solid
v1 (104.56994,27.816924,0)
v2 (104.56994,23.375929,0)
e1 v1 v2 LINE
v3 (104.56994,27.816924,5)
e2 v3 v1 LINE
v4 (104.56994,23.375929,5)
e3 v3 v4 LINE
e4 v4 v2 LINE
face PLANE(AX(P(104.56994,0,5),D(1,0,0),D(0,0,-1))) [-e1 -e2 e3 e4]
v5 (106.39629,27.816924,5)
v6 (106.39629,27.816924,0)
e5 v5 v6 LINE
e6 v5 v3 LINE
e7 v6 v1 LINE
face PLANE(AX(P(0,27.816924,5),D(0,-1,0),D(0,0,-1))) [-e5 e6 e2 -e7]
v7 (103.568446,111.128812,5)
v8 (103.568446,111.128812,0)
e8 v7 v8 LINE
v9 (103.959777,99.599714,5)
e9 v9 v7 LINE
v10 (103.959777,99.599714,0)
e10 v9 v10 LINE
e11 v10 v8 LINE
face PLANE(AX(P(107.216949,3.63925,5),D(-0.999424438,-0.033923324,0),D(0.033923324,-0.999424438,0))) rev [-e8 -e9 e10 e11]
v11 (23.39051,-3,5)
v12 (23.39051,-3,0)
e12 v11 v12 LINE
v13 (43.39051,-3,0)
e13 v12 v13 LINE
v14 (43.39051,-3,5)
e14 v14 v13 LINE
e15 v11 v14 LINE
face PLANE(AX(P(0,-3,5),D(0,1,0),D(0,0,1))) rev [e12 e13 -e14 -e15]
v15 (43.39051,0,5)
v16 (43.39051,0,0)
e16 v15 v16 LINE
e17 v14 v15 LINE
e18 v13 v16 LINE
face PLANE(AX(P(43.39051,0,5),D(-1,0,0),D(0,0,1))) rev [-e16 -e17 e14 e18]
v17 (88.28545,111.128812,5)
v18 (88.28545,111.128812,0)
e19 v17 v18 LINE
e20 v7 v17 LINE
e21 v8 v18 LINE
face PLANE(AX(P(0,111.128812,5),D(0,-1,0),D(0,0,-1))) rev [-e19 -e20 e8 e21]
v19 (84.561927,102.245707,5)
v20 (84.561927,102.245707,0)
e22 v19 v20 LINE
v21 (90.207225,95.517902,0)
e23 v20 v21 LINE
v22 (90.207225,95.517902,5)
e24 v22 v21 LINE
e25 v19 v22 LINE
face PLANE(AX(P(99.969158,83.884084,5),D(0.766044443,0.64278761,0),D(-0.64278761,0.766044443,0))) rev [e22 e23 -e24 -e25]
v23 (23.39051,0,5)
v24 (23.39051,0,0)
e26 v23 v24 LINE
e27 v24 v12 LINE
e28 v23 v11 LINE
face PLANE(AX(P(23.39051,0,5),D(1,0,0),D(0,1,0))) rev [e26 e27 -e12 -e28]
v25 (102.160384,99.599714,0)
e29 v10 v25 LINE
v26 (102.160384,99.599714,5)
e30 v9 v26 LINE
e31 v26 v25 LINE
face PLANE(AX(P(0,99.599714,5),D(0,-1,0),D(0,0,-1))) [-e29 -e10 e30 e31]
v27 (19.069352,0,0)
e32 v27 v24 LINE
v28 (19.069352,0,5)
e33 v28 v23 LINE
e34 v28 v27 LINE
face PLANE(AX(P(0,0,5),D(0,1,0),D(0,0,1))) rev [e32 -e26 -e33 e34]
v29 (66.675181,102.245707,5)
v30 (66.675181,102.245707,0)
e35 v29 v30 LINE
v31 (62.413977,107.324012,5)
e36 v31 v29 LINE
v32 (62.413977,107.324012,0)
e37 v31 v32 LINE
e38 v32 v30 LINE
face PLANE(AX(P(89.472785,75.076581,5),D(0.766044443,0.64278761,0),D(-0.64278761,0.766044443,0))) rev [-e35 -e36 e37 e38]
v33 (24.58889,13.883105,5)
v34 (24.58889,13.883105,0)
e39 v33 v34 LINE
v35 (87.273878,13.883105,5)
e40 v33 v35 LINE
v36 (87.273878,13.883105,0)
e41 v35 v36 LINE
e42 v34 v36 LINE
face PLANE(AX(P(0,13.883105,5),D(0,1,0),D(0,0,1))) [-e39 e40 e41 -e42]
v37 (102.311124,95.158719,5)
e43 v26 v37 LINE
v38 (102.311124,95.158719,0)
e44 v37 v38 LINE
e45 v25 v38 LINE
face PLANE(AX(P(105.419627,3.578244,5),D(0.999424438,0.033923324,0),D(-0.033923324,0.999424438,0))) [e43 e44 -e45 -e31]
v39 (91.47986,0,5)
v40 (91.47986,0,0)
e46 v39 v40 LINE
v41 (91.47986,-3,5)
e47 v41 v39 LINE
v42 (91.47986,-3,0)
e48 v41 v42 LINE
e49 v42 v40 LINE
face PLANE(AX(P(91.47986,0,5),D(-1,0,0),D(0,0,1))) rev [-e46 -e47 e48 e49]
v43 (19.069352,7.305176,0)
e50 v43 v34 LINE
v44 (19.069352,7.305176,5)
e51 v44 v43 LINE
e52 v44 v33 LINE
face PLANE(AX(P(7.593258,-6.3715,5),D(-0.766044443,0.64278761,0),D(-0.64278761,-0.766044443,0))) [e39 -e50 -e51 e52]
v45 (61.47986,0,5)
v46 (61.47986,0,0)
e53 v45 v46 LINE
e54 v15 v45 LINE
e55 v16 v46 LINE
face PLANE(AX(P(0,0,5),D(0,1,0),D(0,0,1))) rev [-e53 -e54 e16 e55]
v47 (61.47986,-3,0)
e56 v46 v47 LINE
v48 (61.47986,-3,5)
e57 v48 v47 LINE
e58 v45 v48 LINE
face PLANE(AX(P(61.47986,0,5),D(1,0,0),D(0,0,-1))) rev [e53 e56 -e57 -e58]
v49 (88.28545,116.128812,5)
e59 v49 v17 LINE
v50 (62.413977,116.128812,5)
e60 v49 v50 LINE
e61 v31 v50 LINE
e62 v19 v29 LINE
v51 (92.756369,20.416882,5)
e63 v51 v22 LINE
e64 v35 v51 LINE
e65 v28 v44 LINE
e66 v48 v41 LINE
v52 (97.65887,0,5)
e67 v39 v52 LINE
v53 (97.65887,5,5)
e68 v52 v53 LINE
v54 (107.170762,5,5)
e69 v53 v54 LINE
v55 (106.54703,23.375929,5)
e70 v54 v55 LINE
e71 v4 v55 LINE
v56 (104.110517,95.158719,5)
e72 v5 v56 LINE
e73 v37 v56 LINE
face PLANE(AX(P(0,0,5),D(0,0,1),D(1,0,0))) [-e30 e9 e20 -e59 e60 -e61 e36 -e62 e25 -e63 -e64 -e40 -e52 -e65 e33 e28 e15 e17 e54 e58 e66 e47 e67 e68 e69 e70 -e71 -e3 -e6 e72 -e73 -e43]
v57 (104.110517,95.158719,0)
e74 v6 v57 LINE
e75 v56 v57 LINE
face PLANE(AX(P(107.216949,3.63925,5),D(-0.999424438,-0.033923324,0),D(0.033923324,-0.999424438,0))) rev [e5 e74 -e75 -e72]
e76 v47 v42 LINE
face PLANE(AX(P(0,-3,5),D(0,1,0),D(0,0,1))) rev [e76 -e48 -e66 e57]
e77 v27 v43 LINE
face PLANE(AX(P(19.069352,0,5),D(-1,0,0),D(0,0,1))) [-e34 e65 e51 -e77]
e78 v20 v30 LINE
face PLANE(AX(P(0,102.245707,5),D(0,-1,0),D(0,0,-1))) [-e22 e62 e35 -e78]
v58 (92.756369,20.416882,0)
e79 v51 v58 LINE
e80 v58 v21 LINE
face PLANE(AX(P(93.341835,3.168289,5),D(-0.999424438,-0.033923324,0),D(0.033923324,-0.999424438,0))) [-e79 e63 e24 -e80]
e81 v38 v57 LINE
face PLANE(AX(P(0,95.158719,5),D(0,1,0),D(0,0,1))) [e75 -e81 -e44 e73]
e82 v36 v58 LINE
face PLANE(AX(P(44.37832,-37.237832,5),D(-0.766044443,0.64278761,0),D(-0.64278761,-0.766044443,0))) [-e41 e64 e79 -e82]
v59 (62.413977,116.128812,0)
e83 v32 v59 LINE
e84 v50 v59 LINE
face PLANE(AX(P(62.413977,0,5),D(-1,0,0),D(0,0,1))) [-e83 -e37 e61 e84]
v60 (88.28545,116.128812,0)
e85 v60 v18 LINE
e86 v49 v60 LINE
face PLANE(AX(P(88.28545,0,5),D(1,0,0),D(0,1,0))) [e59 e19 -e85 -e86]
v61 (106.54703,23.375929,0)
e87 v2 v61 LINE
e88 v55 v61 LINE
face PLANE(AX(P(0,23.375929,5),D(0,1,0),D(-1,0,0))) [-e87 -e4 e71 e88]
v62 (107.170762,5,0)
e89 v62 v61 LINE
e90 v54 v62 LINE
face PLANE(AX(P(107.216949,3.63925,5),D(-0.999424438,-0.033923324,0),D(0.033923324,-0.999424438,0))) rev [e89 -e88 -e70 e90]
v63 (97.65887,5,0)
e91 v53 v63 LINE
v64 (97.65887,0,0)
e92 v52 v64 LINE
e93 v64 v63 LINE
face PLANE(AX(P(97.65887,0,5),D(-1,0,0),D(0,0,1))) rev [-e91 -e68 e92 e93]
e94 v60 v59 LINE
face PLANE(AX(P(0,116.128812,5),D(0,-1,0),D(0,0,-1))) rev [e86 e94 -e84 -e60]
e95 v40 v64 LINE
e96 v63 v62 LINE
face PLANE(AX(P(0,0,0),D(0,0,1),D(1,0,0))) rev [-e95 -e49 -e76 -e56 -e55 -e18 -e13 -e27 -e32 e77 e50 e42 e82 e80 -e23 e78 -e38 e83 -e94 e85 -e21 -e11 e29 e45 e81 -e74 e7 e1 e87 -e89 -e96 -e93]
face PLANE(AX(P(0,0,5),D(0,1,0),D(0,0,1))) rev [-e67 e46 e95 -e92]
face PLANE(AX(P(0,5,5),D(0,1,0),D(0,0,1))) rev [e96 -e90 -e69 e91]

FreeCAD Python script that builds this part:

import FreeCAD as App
import Part
import Sketcher
Q = App.Units.Quantity


def add_polygon(sketch, points):
    """Adds a closed chain of lines whose ends are joined by coincident constraints."""
    first, n = sketch.GeometryCount, len(points)
    for a, b in zip(points, points[1:] + points[:1]):
        sketch.addGeometry(Part.LineSegment(App.Vector(*a, 0), App.Vector(*b, 0)), False)
    for i in range(n):
        sketch.addConstraint(Sketcher.Constraint("Coincident", first + i, 2, first + (i + 1) % n, 1))

doc = App.newDocument("Part")
body = doc.addObject("PartDesign::Body", "Body")

sketch1 = doc.addObject("Sketcher::SketchObject", "Sketch")
body.addObject(sketch1)
sketch1.AttachmentSupport = (doc.XY_Plane, [""])
sketch1.MapMode = "FlatFace"
add_polygon(sketch1, [(19.069352, 7.305176), (19.069352, 0), (23.39051, 0), (23.39051, -3), (43.39051, -3), (43.39051, 0), (61.47986, 0), (61.47986, -3), (91.47986, -3), (91.47986, 0), (97.65887, 0), (97.65887, 5), (107.170762, 5), (106.54703, 23.375929), (104.56994, 23.375929), (104.56994, 27.816924), (106.39629, 27.816924), (104.110517, 95.158719), (102.311124, 95.158719), (102.160384, 99.599714), (103.959777, 99.599714), (103.568446, 111.128812), (88.28545, 111.128812), (88.28545, 116.128812), (62.413977, 116.128812), (62.413977, 107.324012), (66.675181, 102.245707), (84.561927, 102.245707), (90.207225, 95.517902), (92.756369, 20.416882), (87.273878, 13.883105), (24.58889, 13.883105)])
sketch1.addConstraint([
    Sketcher.Constraint("Vertical", 0),
    Sketcher.Constraint("Horizontal", 1),
    Sketcher.Constraint("Vertical", 2),
    Sketcher.Constraint("Horizontal", 3),
    Sketcher.Constraint("Vertical", 4),
    Sketcher.Constraint("Horizontal", 5),
    Sketcher.Constraint("Vertical", 6),
    Sketcher.Constraint("Horizontal", 7),
    Sketcher.Constraint("Vertical", 8),
    Sketcher.Constraint("Horizontal", 9),
    Sketcher.Constraint("Vertical", 10),
    Sketcher.Constraint("Horizontal", 11),
    Sketcher.Constraint("Horizontal", 13),
    Sketcher.Constraint("Vertical", 14),
    Sketcher.Constraint("Horizontal", 15),
    Sketcher.Constraint("Horizontal", 17),
    Sketcher.Constraint("Horizontal", 19),
    Sketcher.Constraint("Horizontal", 21),
    Sketcher.Constraint("Vertical", 22),
    Sketcher.Constraint("Horizontal", 23),
    Sketcher.Constraint("Vertical", 24),
    Sketcher.Constraint("Horizontal", 26),
    Sketcher.Constraint("Horizontal", 30),
    Sketcher.Constraint("PointOnObject", 0, 2, -1),
    Sketcher.Constraint("PointOnObject", 4, 2, -1),
    Sketcher.Constraint("PointOnObject", 8, 2, -1),
    Sketcher.Constraint("DistanceX", 3, 1, 3, 2, Q("20 mm")),
    Sketcher.Constraint("DistanceX", 7, 1, 7, 2, Q("30 mm")),
    Sketcher.Constraint("DistanceY", 2, 2, 2, 1, Q("3 mm")),
    Sketcher.Constraint("DistanceY", 6, 2, 6, 1, Q("3 mm")),
    Sketcher.Constraint("DistanceY", 10, 1, 10, 2, Q("5 mm")),
    Sketcher.Constraint("DistanceY", 22, 1, 22, 2, Q("5 mm")),
    Sketcher.Constraint("DistanceY", 24, 2, 24, 1, Q("8.804799 mm")),
    Sketcher.Constraint("DistanceX", 5, 1, 5, 2, Q("18.08935 mm")),
    Sketcher.Constraint("DistanceX", 9, 1, 9, 2, Q("6.17901 mm")),
    Sketcher.Constraint("DistanceX", 11, 1, 11, 2, Q("9.511891 mm")),
    Sketcher.Constraint("DistanceX", 13, 2, 13, 1, Q("1.97709 mm")),
    Sketcher.Constraint("DistanceX", 15, 1, 15, 2, Q("1.826349 mm")),
    Sketcher.Constraint("DistanceX", 30, 2, 30, 1, Q("62.684988 mm")),
    Sketcher.Constraint("DistanceX", 23, 2, 19, 2, Q("41.545799 mm")),
    Sketcher.Constraint("DistanceY", 18, 2, 24, 2, Q("7.724298 mm")),
    Sketcher.Constraint("DistanceX", 26, 2, 27, 2, Q("5.645299 mm")),
    Sketcher.Constraint("DistanceX", 27, 2, 17, 2, Q("12.103899 mm")),
    Sketcher.Constraint("DistanceX", 28, 2, 10, 2, Q("4.902501 mm")),
    Sketcher.Constraint("Distance", 12, Q("18.386511 mm")),
    Sketcher.Constraint("Distance", 28, Q("75.14427 mm")),
    Sketcher.Constraint("Distance", 29, Q("8.529241 mm")),
    Sketcher.Constraint("DistanceX", 1, 1, 1, 2, Q("4.321158 mm")),
    Sketcher.Constraint("DistanceX", 17, 2, 17, 1, Q("1.799393 mm")),
    Sketcher.Constraint("DistanceX", 19, 1, 19, 2, Q("1.799393 mm")),
    Sketcher.Constraint("DistanceX", 21, 2, 21, 1, Q("15.282996 mm")),
    Sketcher.Constraint("DistanceX", 23, 2, 23, 1, Q("25.871473 mm")),
    Sketcher.Constraint("DistanceX", 26, 1, 26, 2, Q("17.886745 mm")),
    Sketcher.Constraint("DistanceY", 0, 2, 0, 1, Q("7.305176 mm")),
    Sketcher.Constraint("DistanceY", 14, 1, 14, 2, Q("4.440995 mm")),
    Sketcher.Constraint("DistanceX", -1, 1, 1, 2, Q("23.39051 mm")),
    Sketcher.Constraint("DistanceX", -1, 1, 12, 2, Q("106.54703 mm")),
    Sketcher.Constraint("DistanceY", -1, 1, 16, 2, Q("95.158719 mm")),
    Sketcher.Constraint("DistanceY", -1, 1, 20, 2, Q("111.128812 mm")),
    Sketcher.Constraint("DistanceX", -1, 1, 21, 2, Q("88.28545 mm")),
    Sketcher.Constraint("DistanceX", -1, 1, 25, 2, Q("66.675181 mm")),
    Sketcher.Constraint("DistanceX", -1, 1, 29, 2, Q("87.273878 mm")),
    Sketcher.Constraint("DistanceY", 17, 2, 26, 2, Q("7.086988 mm")),
    Sketcher.Constraint("DistanceY", 27, 2, 18, 2, Q("4.081812 mm")),
])
pad1 = doc.addObject("PartDesign::Pad", "Pad")
body.addObject(pad1)
pad1.Profile = sketch1
pad1.Length = 5

doc.recompute()
